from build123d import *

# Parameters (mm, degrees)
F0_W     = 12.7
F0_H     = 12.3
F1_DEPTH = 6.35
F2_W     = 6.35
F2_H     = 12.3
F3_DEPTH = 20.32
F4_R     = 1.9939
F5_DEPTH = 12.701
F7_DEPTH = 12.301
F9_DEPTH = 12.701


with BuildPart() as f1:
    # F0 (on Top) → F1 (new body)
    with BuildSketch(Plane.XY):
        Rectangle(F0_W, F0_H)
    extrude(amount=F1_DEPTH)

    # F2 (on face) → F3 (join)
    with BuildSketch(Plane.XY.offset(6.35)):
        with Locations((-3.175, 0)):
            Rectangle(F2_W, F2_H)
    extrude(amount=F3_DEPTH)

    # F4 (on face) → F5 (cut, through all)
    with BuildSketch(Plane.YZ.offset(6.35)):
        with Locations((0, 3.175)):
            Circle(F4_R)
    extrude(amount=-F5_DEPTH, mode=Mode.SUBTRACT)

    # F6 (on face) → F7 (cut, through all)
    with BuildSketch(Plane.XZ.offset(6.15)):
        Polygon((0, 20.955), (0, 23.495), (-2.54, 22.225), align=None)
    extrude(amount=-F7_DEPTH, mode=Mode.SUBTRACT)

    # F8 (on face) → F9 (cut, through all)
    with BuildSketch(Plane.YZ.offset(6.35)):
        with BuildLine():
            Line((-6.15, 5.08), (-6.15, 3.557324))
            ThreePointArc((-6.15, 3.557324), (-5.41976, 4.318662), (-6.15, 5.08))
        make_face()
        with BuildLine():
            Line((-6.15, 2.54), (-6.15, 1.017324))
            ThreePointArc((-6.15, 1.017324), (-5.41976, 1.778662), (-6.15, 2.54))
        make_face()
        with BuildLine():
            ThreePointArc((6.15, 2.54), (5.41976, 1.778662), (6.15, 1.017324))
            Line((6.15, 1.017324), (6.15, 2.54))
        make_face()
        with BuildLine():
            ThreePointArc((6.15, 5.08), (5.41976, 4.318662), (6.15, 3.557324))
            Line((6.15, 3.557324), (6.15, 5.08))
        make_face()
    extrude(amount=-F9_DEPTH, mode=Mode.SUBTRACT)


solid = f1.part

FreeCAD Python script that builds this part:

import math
import FreeCAD as App
import Part
import Sketcher

V = App.Vector
Q = App.Units.Quantity


def add_polygon(sketch, points):
    """Adds a closed chain of lines whose ends are joined by coincident constraints."""
    first, n = sketch.GeometryCount, len(points)
    for a, b in zip(points, points[1:] + points[:1]):
        sketch.addGeometry(Part.LineSegment(App.Vector(*a, 0), App.Vector(*b, 0)), False)
    for i in range(n):
        sketch.addConstraint(Sketcher.Constraint("Coincident", first + i, 2, first + (i + 1) % n, 1))

doc = App.newDocument("Part")
params = doc.addObject("Spreadsheet::Sheet", "Params")
for row, (alias, value) in enumerate([
    ("sketch1_width", "0.5 in"),
    ("pad1_length", "0.25 in"),
    ("sketch2_width", "0.25 in"),
    ("pad2_length", "0.8 in"),
    ("sketch3_diameter", "0.157 in"),
    ("sketch4_height", "0.1 in"),
    ("sketch5_radius", "0.03 in"),
], start=1):
    params.set(f"A{row}", alias)
    params.set(f"B{row}", "=" + value)
    params.setAlias(f"B{row}", alias)

body = doc.addObject("PartDesign::Body", "Body")

# Sketch on XY plane
sketch1 = body.newObject("Sketcher::SketchObject", "Sketch")
sketch1.AttachmentSupport = (doc.getObject("XY_Plane"), [""])
sketch1.MapMode = "FlatFace"
add_polygon(sketch1, [(-6.35, 6.15), (-6.35, -6.15), (6.35, -6.15), (6.35, 6.15)])  # lines 0-3
sketch1.addConstraint([
    Sketcher.Constraint("Vertical", 0),
    Sketcher.Constraint("Horizontal", 1),
    Sketcher.Constraint("Vertical", 2),
    Sketcher.Constraint("Horizontal", 3),
    Sketcher.Constraint("Symmetric", 0, 2, 2, 2, -1, 1),
    Sketcher.Constraint("DistanceX", 1, 1, 1, 2, Q("0.5 in")),
    Sketcher.Constraint("DistanceY", 0, 2, 0, 1, 12.3),
])
sketch1.setExpression("Constraints[9]", "Params.sketch1_width")
pad1 = body.newObject("PartDesign::Pad", "Pad")
pad1.Profile = sketch1
pad1.setExpression("Length", "Params.pad1_length")

# Sketch on XY plane
sketch2 = body.newObject("Sketcher::SketchObject", "Sketch001")
sketch2.AttachmentSupport = (doc.getObject("XY_Plane"), [""])
sketch2.MapMode = "FlatFace"
sketch2.AttachmentOffset = App.Placement(V(0, 0, 0.25 * 25.4), App.Rotation())
add_polygon(sketch2, [(-6.35, 6.15), (-6.35, -6.15), (0, -6.15), (0, 6.15)])  # lines 0-3
sketch2.addConstraint([
    Sketcher.Constraint("Vertical", 0),
    Sketcher.Constraint("Horizontal", 1),
    Sketcher.Constraint("Vertical", 2),
    Sketcher.Constraint("Horizontal", 3),
    Sketcher.Constraint("Symmetric", 1, 2, 2, 2, -1, 1),
    Sketcher.Constraint("DistanceX", 1, 1, 1, 2, Q("0.25 in")),
    Sketcher.Constraint("DistanceY", 0, 2, 0, 1, 12.3),
])
sketch2.setExpression("Constraints[9]", "Params.sketch2_width")
pad2 = body.newObject("PartDesign::Pad", "Pad001")
pad2.Profile = sketch2
pad2.setExpression("Length", "Params.pad2_length")

# Sketch on YZ plane
sketch3 = body.newObject("Sketcher::SketchObject", "Sketch002")
sketch3.AttachmentSupport = (doc.getObject("YZ_Plane"), [""])
sketch3.MapMode = "FlatFace"
sketch3.AttachmentOffset = App.Placement(V(0, 0, 0.25 * 25.4), App.Rotation())
sketch3.addGeometry(Part.Circle(V(0, 3.175, 0), V(0, 0, 1), 1.9939), False)
sketch3.addConstraint([
    Sketcher.Constraint("PointOnObject", 0, 3, -2),
    Sketcher.Constraint("Diameter", 0, Q("0.157 in")),
    Sketcher.Constraint("DistanceY", -1, 1, 0, 3, Q("0.125 in")),
])
sketch3.setExpression("Constraints[1]", "Params.sketch3_diameter")
pocket1 = body.newObject("PartDesign::Pocket", "Pocket")
pocket1.Profile = sketch3
pocket1.Type = "ThroughAll"

# Sketch on XZ plane
sketch4 = body.newObject("Sketcher::SketchObject", "Sketch003")
sketch4.AttachmentSupport = (doc.getObject("XZ_Plane"), [""])
sketch4.MapMode = "FlatFace"
sketch4.AttachmentOffset = App.Placement(V(0, 0, 6.15), App.Rotation())
add_polygon(sketch4, [(0, 20.955), (0, 23.495), (-2.54, 22.225)])  # lines 0-2
sketch4.addConstraint([
    Sketcher.Constraint("Vertical", 0),
    Sketcher.Constraint("PointOnObject", 0, 2, -2),
    Sketcher.Constraint("Equal", 1, 2),
    Sketcher.Constraint("DistanceY", 0, 1, 0, 2, Q("0.1 in")),
    Sketcher.Constraint("DistanceX", 1, 2, -1, 1, Q("0.1 in")),
    Sketcher.Constraint("DistanceY", -1, 1, 0, 2, Q("0.925 in")),
])
sketch4.setExpression("Constraints[6]", "Params.sketch4_height")
pocket2 = body.newObject("PartDesign::Pocket", "Pocket001")
pocket2.Profile = sketch4
pocket2.Type = "ThroughAll"

# Sketch on YZ plane
sketch5 = body.newObject("Sketcher::SketchObject", "Sketch004")
sketch5.AttachmentSupport = (doc.getObject("YZ_Plane"), [""])
sketch5.MapMode = "FlatFace"
sketch5.AttachmentOffset = App.Placement(V(0, 0, 0.25 * 25.4), App.Rotation())
sketch5.addGeometry([
    Part.LineSegment(V(-6.15, 5.08, 0), V(-6.15, 3.557324, 0)),  # 0
    Part.ArcOfCircle(Part.Circle(V(-6.18176, 4.318662, 0), V(0, 0, 1), 0.762), math.radians(-87.61122), math.radians(87.61122)),  # 1
    Part.LineSegment(V(-6.15, 2.54, 0), V(-6.15, 1.017324, 0)),  # 2
    Part.ArcOfCircle(Part.Circle(V(-6.18176, 1.778662, 0), V(0, 0, 1), 0.762), math.radians(-87.61122), math.radians(87.61122)),  # 3
    Part.ArcOfCircle(Part.Circle(V(6.18176, 1.778662, 0), V(0, 0, 1), 0.762), math.radians(92.38878), math.radians(267.61122)),  # 4
    Part.LineSegment(V(6.15, 1.017324, 0), V(6.15, 2.54, 0)),  # 5
    Part.ArcOfCircle(Part.Circle(V(6.18176, 4.318662, 0), V(0, 0, 1), 0.762), math.radians(92.38878), math.radians(267.61122)),  # 6
    Part.LineSegment(V(6.15, 3.557324, 0), V(6.15, 5.08, 0)),  # 7
], False)
sketch5.addConstraint([
    Sketcher.Constraint("Coincident", 0, 1, 1, 2),
    Sketcher.Constraint("Coincident", 1, 1, 0, 2),
    Sketcher.Constraint("Coincident", 2, 1, 3, 2),
    Sketcher.Constraint("Coincident", 3, 1, 2, 2),
    Sketcher.Constraint("Coincident", 4, 1, 5, 2),
    Sketcher.Constraint("Coincident", 5, 1, 4, 2),
    Sketcher.Constraint("Coincident", 6, 1, 7, 2),
    Sketcher.Constraint("Coincident", 7, 1, 6, 2),
    Sketcher.Constraint("Vertical", 0),
    Sketcher.Constraint("Vertical", 2),
    Sketcher.Constraint("Vertical", 5),
    Sketcher.Constraint("Vertical", 7),
    Sketcher.Constraint("Equal", 1, 3),
    Sketcher.Constraint("Equal", 3, 4),
    Sketcher.Constraint("Equal", 4, 6),
    Sketcher.Constraint("Symmetric", 3, 3, 4, 3, -2),
    Sketcher.Constraint("Symmetric", 1, 3, 6, 3, -2),
    Sketcher.Constraint("Horizontal", 2, 1, 4, 1),
    Sketcher.Constraint("Horizontal", 0, 1, 6, 1),
    Sketcher.Constraint("Vertical", 1, 3, 3, 3),
    Sketcher.Constraint("Vertical", 1, 1, 2, 1),
    Sketcher.Constraint("Radius", 1, Q("0.03 in")),
    Sketcher.Constraint("DistanceY", -1, 1, 0, 1, Q("0.2 in")),
    Sketcher.Constraint("DistanceY", -1, 1, 2, 1, Q("0.1 in")),
    Sketcher.Constraint("DistanceX", 0, 1, -1, 1, 6.15),
    Sketcher.Constraint("DistanceY", 0, 2, 0, 1, 1.522676),
])
sketch5.setExpression("Constraints[21]", "Params.sketch5_radius")
pocket3 = body.newObject("PartDesign::Pocket", "Pocket002")
pocket3.Profile = sketch5
pocket3.Type = "ThroughAll"

doc.recompute()
